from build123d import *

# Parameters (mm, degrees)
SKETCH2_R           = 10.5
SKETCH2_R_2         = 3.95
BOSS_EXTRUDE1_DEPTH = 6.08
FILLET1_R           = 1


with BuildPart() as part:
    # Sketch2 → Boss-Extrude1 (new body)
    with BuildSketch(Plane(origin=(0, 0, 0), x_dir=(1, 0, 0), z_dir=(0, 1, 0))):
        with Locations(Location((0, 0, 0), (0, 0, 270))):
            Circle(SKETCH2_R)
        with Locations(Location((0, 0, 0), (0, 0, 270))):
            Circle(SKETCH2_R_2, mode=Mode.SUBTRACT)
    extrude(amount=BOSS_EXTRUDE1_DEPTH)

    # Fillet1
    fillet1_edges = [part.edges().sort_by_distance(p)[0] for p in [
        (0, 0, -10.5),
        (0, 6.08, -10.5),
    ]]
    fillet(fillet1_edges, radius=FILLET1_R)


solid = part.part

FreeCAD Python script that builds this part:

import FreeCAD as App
import Part
import Sketcher
from FreeCAD import Vector
Q = App.Units.Quantity


def edges_at(feature, points):
    """Names of the edges that pass closest to the given points."""
    edges = feature.Shape.Edges
    near = lambda p: min(range(len(edges)), key=lambda i: edges[i].distToShape(Part.Vertex(*p))[0])
    return sorted({f"Edge{near(p) + 1}" for p in points})

doc = App.newDocument("Part")
body = doc.addObject("PartDesign::Body", "Body")

# Sketch on XZ plane
sketch1 = body.newObject("Sketcher::SketchObject", "Sketch")
sketch1.AttachmentSupport = (doc.getObject("XZ_Plane"), [""])
sketch1.MapMode = "FlatFace"
sketch1.addGeometry([
    Part.Circle(Vector(0, 0, 0), Vector(0, 0, 1), 10.5),
    Part.Circle(Vector(0, 0, 0), Vector(0, 0, 1), 3.95),
], False)
sketch1.addConstraint([
    Sketcher.Constraint("Coincident", 0, 3, -1, 1),
    Sketcher.Constraint("Coincident", 1, 3, -1, 1),
    Sketcher.Constraint("Diameter", 0, Q("21 mm")),
    Sketcher.Constraint("Diameter", 1, Q("7.9 mm")),
])
pad1 = body.newObject("PartDesign::Pad", "Pad")
pad1.Profile = sketch1
pad1.Length = 6.08
pad1.Reversed = True
doc.recompute()

fillet = body.newObject("PartDesign::Fillet", "Fillet")
fillet.Base = (pad1, edges_at(pad1, [(0, 0, -10.5), (0, 6.08, -10.5)]))
fillet.Radius = 1

doc.recompute()
